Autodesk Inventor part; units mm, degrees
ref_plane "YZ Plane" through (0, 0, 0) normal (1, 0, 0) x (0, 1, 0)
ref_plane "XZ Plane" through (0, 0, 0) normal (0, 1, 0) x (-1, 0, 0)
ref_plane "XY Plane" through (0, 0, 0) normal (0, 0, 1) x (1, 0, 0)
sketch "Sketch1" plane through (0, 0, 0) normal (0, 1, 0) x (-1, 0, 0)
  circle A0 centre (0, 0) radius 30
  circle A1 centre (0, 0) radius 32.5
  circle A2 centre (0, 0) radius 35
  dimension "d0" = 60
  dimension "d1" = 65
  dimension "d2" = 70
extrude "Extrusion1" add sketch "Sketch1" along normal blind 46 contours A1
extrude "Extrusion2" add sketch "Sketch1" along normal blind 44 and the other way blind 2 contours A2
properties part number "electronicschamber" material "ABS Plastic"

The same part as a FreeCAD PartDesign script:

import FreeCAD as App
import Part
import Sketcher
from FreeCAD import Vector
Q = App.Units.Quantity

doc = App.newDocument("Part")
body = doc.addObject("PartDesign::Body", "Body")

sketch1 = body.newObject("Sketcher::SketchObject", "Sketch")
sketch1.AttachmentSupport = (doc.getObject("XZ_Plane"), [""])
sketch1.MapMode = "FlatFace"
sketch1.addGeometry(Part.Circle(Vector(0, 0, 0), Vector(0, 0, 1), 32.5), False)
sketch1.addGeometry(Part.Circle(Vector(0, 0, 0), Vector(0, 0, 1), 30), False)
sketch1.addConstraint(Sketcher.Constraint("Coincident", 0, 3, -1, 1))
sketch1.addConstraint(Sketcher.Constraint("Coincident", 1, 3, -1, 1))
sketch1.addConstraint(Sketcher.Constraint("Diameter", 0, Q("65 mm")))
sketch1.addConstraint(Sketcher.Constraint("Diameter", 1, Q("60 mm")))
pad1 = body.newObject("PartDesign::Pad", "Pad")
pad1.Profile = sketch1
pad1.Length = 46
pad1.Reversed = True

sketch2 = body.newObject("Sketcher::SketchObject", "Sketch001")
sketch2.AttachmentSupport = (doc.getObject("XZ_Plane"), [""])
sketch2.MapMode = "FlatFace"
sketch2.addGeometry(Part.Circle(Vector(0, 0, 0), Vector(0, 0, 1), 35), False)
sketch2.addGeometry(Part.Circle(Vector(0, 0, 0), Vector(0, 0, 1), 32.5), False)
sketch2.addConstraint(Sketcher.Constraint("Coincident", 0, 3, -1, 1))
sketch2.addConstraint(Sketcher.Constraint("Coincident", 1, 3, -1, 1))
sketch2.addConstraint(Sketcher.Constraint("Diameter", 0, Q("70 mm")))
sketch2.addConstraint(Sketcher.Constraint("Diameter", 1, Q("65 mm")))
pad2 = body.newObject("PartDesign::Pad", "Pad001")
pad2.Profile = sketch2
pad2.Type = "TwoLengths"
pad2.Length = 44
pad2.Length2 = 2
pad2.Reversed = True

doc.recompute()
